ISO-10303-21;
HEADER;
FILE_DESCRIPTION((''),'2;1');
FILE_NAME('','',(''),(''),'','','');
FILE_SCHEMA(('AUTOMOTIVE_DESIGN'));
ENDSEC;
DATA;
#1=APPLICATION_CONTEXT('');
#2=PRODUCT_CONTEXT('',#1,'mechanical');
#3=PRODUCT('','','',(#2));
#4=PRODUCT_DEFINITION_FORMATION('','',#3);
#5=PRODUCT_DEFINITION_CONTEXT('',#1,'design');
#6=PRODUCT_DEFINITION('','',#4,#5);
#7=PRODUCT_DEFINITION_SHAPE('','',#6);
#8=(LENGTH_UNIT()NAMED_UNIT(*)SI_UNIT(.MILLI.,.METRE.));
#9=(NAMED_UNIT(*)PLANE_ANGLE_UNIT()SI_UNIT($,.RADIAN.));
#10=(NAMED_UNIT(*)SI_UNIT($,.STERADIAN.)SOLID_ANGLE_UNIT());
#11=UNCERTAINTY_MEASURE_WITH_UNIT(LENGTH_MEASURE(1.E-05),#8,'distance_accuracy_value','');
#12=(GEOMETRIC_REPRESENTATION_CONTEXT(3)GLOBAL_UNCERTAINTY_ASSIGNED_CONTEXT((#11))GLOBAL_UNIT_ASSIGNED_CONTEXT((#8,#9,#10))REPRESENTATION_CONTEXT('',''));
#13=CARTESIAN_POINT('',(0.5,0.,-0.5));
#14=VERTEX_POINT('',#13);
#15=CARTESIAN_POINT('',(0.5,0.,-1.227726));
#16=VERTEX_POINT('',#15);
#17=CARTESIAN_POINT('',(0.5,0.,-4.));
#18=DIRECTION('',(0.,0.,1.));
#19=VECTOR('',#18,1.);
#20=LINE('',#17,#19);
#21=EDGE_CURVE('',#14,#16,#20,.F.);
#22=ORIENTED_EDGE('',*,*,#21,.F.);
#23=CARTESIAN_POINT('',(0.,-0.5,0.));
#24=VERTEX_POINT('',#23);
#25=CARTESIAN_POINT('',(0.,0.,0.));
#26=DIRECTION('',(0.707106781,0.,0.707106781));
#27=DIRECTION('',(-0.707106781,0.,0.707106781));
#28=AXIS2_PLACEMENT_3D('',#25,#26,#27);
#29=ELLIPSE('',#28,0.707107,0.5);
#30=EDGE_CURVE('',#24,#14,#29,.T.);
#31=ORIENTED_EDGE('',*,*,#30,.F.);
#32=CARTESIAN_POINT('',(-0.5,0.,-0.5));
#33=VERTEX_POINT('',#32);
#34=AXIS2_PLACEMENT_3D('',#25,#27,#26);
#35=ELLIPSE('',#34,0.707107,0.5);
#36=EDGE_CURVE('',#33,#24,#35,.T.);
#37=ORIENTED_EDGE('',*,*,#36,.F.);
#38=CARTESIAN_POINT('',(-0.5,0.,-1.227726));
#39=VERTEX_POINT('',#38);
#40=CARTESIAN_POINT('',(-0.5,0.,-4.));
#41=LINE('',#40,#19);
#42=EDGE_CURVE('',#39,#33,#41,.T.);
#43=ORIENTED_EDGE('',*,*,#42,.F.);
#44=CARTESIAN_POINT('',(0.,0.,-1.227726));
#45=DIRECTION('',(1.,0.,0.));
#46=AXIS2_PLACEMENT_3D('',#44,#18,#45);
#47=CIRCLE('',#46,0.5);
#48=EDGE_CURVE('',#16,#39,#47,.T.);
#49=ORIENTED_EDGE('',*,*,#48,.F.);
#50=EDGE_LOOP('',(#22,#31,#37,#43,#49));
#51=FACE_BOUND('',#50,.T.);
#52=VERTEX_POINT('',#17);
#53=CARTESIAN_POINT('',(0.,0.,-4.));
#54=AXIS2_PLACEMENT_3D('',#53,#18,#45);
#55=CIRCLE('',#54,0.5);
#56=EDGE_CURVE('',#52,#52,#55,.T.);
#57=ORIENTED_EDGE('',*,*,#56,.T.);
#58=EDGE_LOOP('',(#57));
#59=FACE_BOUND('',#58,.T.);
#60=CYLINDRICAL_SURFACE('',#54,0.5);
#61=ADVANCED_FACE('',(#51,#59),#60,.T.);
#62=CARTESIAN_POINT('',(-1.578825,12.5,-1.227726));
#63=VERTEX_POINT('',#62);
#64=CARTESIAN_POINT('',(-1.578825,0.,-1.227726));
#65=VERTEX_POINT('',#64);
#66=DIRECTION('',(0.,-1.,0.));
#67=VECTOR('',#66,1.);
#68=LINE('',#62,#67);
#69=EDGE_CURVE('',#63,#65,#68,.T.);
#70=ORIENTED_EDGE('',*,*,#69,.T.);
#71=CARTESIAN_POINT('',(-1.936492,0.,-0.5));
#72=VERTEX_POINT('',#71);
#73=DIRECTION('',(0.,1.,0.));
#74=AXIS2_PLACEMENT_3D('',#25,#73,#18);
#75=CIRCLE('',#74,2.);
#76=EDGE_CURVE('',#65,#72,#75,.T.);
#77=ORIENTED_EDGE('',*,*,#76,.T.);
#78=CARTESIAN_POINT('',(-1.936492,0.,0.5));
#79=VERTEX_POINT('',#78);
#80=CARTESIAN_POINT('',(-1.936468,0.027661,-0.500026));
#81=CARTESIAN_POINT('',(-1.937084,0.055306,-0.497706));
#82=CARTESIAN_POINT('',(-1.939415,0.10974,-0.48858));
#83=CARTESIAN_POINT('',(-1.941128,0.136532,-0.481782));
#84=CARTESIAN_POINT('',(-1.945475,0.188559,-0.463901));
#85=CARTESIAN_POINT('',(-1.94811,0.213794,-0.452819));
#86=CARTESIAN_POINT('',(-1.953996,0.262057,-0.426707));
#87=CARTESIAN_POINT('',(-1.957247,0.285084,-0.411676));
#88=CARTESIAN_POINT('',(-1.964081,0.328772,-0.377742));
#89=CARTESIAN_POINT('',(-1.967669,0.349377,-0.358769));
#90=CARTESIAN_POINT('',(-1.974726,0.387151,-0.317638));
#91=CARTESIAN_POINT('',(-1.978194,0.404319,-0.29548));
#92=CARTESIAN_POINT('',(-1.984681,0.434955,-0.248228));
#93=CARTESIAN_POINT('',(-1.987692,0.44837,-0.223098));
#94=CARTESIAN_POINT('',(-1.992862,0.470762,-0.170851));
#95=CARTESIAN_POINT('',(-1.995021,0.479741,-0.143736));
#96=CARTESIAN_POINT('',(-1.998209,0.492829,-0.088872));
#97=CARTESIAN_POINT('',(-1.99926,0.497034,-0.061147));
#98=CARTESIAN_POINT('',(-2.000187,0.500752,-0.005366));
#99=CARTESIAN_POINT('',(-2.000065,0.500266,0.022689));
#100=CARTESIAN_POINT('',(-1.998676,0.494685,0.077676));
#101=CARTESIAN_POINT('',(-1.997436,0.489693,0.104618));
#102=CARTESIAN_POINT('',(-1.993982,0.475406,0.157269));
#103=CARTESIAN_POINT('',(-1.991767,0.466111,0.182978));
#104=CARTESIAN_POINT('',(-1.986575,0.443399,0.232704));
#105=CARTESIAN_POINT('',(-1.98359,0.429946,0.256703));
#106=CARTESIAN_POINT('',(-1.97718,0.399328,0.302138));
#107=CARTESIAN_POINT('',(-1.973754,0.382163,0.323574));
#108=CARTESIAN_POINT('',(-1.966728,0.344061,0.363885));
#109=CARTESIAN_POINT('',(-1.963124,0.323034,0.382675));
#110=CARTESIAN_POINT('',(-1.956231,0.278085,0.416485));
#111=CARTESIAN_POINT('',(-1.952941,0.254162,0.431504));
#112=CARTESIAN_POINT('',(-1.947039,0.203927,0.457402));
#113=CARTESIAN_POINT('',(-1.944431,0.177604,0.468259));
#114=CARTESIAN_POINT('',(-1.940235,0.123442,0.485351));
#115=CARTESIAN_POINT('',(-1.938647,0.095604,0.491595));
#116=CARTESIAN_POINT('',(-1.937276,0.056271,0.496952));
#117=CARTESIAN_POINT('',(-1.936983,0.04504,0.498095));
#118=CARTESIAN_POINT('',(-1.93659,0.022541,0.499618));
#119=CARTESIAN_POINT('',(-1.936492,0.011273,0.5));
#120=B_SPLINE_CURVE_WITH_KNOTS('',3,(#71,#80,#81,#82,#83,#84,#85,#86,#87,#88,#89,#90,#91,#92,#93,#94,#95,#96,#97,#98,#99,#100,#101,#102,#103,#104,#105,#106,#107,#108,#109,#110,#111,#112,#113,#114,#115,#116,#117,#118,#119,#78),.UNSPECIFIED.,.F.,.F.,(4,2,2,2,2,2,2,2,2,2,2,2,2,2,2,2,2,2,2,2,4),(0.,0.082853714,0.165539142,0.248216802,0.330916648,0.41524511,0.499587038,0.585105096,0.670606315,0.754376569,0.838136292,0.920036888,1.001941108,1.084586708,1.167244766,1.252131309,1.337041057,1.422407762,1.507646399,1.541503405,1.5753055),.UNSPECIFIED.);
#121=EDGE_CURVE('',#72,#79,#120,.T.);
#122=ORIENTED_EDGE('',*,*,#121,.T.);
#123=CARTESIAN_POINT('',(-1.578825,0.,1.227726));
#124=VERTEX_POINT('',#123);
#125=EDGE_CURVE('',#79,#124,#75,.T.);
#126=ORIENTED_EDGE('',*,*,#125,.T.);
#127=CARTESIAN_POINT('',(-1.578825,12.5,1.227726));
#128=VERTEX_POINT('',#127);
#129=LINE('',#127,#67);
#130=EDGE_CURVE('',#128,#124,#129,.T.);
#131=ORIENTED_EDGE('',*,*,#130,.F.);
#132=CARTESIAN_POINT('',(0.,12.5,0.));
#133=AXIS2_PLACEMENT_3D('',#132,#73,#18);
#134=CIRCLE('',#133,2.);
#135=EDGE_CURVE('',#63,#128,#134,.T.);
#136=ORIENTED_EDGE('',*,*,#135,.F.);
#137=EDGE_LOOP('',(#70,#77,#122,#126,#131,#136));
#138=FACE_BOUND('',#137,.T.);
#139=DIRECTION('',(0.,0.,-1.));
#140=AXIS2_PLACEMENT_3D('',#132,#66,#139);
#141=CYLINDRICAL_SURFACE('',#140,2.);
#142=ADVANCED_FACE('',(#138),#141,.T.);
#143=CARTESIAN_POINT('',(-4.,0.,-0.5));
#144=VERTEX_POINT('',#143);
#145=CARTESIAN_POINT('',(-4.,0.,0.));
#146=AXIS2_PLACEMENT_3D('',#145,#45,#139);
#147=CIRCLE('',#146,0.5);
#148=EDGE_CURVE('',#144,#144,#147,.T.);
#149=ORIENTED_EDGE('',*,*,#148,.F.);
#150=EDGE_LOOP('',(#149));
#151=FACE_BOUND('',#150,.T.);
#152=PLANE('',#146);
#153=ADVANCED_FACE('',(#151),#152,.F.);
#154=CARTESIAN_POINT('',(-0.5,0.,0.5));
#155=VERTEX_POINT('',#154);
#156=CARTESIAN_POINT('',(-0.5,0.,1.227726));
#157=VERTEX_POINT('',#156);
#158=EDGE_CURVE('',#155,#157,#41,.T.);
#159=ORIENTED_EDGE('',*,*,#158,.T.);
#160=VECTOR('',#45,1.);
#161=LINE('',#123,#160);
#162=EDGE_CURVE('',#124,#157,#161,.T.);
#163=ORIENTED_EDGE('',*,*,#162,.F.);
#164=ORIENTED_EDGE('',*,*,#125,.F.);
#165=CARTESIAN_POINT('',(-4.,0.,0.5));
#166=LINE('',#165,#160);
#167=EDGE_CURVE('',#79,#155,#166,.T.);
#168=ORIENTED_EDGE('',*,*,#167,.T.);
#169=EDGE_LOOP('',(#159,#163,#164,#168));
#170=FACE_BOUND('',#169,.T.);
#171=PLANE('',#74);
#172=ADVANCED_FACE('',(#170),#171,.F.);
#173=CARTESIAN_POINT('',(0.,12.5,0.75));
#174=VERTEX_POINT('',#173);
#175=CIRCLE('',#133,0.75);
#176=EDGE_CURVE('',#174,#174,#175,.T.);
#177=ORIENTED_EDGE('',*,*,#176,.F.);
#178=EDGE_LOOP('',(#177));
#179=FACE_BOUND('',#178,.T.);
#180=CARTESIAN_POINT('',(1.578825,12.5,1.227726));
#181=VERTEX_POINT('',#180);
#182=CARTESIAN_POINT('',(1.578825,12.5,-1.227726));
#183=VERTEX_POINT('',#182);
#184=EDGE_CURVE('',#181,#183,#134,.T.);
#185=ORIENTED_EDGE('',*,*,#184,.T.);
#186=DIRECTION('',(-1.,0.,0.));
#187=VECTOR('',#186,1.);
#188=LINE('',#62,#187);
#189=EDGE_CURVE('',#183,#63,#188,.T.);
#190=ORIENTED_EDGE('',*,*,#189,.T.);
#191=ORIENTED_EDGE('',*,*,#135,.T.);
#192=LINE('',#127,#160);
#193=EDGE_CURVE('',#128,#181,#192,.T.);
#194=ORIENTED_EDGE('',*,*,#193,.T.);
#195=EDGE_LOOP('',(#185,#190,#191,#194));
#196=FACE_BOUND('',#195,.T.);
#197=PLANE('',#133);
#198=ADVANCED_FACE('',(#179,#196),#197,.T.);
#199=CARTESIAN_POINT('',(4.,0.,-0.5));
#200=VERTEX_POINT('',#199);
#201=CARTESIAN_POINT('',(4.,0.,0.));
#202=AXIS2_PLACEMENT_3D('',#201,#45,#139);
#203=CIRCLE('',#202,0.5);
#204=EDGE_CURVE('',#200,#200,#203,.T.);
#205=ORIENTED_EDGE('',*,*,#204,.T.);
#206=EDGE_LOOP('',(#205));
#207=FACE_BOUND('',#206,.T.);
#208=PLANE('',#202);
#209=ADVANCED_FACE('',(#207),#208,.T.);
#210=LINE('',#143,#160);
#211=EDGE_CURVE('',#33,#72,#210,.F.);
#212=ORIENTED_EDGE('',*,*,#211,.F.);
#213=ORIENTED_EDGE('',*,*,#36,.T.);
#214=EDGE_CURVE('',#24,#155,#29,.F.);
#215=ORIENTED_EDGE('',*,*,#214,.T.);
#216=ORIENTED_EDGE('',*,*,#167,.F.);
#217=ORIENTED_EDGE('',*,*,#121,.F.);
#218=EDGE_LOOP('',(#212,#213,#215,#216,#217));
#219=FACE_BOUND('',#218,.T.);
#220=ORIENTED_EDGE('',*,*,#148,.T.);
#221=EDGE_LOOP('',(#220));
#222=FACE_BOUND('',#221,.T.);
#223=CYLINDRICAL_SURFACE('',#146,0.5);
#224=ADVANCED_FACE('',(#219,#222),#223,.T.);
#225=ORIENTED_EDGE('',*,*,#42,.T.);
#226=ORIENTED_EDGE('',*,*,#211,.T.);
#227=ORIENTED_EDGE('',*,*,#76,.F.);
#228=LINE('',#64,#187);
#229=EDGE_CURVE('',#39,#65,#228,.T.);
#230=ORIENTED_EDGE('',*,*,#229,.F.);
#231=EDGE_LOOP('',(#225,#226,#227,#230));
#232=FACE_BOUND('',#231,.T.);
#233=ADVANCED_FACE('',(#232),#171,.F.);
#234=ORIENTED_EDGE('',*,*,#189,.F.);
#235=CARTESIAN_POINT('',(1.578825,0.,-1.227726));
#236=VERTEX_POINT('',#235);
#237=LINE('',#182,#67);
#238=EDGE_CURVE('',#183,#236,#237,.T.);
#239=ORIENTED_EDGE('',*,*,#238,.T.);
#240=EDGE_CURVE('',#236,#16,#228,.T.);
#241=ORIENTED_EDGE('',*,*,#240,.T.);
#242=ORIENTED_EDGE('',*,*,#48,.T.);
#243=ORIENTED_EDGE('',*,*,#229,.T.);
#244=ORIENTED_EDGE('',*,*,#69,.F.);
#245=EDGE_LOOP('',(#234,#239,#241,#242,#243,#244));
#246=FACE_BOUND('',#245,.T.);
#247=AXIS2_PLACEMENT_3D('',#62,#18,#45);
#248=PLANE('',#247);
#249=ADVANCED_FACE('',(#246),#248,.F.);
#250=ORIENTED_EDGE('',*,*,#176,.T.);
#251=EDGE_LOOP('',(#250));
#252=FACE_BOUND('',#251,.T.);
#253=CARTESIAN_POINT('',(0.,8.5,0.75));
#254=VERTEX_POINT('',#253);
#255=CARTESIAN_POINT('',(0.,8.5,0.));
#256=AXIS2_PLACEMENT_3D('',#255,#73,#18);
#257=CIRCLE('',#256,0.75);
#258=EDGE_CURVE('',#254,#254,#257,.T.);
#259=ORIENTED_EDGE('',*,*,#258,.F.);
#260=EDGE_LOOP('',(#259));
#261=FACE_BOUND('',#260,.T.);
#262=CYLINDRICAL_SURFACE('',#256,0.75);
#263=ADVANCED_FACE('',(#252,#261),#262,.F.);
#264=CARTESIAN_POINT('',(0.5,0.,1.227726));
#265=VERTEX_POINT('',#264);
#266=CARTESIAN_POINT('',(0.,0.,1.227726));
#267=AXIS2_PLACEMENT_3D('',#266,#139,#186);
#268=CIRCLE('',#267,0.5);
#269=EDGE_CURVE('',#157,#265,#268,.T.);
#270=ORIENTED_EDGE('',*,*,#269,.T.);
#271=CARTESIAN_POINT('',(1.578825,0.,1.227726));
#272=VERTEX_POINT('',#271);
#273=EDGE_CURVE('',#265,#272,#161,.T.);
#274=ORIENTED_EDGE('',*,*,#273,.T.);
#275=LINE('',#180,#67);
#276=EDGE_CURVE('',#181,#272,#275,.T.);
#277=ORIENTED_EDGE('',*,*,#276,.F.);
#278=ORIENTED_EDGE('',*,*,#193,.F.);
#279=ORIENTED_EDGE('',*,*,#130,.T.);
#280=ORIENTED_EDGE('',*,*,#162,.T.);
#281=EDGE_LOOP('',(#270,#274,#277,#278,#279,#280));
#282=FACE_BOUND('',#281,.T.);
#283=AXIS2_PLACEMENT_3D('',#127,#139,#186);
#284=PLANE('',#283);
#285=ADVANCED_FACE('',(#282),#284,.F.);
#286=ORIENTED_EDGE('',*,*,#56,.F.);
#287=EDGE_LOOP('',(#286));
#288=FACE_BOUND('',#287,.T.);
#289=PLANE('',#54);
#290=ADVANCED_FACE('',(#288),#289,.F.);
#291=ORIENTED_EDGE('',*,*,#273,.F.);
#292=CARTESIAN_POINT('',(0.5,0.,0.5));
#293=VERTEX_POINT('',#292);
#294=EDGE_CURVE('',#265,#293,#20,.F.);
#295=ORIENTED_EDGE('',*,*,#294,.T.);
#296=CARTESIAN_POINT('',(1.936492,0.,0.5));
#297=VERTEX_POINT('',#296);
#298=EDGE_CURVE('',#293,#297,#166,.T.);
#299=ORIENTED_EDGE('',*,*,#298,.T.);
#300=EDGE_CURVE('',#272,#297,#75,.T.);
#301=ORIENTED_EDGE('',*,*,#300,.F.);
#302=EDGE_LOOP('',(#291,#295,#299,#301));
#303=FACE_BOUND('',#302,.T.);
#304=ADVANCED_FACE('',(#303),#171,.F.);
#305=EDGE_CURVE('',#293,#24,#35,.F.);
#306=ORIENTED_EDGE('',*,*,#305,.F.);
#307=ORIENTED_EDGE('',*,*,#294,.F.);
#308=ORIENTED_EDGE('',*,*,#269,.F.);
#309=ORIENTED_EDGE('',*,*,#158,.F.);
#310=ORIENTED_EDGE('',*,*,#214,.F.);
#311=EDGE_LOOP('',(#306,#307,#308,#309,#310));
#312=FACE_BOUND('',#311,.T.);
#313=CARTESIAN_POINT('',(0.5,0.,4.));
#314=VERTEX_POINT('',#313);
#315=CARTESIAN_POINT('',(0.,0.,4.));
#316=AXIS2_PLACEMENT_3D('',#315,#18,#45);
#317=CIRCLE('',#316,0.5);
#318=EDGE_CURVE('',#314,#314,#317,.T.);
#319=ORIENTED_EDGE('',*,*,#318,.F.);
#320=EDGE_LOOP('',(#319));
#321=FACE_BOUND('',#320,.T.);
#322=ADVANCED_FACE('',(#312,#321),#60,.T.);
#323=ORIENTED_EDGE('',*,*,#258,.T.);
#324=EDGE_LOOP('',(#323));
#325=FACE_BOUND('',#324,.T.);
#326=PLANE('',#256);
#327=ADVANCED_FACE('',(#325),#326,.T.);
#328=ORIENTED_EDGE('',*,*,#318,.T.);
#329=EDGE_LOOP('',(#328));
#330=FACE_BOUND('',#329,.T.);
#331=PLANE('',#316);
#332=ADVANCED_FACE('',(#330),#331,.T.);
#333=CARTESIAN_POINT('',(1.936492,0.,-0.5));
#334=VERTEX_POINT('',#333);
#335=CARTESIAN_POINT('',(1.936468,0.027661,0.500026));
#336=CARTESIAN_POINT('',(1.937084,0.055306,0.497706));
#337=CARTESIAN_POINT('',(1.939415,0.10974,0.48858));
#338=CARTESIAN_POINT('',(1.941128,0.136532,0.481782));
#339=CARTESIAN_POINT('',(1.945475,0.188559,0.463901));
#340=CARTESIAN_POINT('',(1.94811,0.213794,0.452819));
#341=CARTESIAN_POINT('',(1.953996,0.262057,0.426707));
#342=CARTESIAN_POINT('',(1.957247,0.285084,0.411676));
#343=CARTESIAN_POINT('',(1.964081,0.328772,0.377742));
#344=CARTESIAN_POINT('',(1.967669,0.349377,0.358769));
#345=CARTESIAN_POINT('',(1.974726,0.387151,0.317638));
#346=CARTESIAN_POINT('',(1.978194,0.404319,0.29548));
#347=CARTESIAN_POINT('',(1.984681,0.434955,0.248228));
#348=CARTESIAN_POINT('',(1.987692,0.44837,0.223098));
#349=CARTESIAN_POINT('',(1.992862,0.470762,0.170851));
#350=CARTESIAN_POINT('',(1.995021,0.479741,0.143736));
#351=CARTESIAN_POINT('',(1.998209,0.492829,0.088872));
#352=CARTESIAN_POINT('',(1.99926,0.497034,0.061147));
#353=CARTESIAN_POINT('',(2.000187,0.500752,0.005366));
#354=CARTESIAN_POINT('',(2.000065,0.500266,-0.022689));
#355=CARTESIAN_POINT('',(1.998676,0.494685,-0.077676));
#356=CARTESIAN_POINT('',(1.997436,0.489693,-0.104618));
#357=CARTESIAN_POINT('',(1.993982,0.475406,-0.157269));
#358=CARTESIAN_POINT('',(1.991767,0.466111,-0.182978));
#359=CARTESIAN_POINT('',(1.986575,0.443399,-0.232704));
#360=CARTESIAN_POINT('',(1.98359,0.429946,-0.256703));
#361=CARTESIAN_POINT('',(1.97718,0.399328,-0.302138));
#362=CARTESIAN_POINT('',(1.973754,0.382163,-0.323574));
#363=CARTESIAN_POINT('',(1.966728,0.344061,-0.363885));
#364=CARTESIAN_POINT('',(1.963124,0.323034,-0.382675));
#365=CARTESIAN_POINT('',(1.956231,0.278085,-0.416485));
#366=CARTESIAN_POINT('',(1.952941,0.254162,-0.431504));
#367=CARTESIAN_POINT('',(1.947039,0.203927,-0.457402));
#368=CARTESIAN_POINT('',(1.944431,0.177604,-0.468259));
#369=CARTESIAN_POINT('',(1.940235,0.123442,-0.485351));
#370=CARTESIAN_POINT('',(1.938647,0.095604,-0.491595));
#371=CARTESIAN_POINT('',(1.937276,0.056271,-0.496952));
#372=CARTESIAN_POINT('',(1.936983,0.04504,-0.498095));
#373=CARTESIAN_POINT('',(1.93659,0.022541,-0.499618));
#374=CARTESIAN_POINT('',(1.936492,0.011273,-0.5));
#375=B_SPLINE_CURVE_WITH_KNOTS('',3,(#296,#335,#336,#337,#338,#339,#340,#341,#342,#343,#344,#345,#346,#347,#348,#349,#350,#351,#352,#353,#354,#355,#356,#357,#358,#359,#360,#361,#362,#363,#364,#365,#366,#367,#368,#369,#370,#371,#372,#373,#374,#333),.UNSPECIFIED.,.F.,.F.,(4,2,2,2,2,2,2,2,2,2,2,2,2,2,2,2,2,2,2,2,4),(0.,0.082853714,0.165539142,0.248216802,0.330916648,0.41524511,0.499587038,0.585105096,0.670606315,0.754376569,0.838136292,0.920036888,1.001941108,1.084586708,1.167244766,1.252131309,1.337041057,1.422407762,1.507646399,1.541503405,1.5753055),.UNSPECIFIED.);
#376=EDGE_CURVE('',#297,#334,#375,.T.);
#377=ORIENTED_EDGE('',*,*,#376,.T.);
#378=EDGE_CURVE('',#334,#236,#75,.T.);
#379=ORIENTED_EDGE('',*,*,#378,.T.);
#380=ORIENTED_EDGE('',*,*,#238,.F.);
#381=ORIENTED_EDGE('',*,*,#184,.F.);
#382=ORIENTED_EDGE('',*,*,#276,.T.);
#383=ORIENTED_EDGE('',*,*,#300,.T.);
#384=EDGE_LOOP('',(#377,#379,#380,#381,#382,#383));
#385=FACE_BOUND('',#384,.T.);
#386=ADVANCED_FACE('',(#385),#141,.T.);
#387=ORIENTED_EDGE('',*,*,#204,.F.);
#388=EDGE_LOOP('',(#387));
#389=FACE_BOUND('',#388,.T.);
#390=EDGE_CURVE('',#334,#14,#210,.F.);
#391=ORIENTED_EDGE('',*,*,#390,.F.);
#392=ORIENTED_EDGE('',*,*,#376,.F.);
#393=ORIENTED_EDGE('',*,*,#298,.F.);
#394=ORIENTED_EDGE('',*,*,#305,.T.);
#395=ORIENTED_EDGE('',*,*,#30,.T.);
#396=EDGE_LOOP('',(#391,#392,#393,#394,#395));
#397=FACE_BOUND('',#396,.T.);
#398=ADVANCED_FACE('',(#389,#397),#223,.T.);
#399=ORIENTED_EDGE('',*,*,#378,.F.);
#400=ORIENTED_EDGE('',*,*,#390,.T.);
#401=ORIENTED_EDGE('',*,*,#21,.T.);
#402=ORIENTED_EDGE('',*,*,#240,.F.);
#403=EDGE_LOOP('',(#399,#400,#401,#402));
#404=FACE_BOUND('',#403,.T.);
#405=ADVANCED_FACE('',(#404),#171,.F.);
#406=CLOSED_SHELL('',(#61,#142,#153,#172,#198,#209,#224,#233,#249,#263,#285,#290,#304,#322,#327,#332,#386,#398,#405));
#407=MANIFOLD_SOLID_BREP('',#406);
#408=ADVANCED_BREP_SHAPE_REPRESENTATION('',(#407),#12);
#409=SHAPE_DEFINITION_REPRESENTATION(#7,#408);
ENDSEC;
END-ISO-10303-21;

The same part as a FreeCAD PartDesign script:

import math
import FreeCAD as App
import Part
import Sketcher
from FreeCAD import Vector
Q = App.Units.Quantity

doc = App.newDocument("Part")
body = doc.addObject("PartDesign::Body", "Body")

# Sketch on XZ plane
sketch1 = body.newObject("Sketcher::SketchObject", "Sketch")
sketch1.AttachmentSupport = (doc.getObject("XZ_Plane"), [""])
sketch1.MapMode = "FlatFace"
sketch1.addGeometry([
    Part.LineSegment(Vector(1.6, -1.2, 0), Vector(-1.6, -1.2, 0)),
    Part.ArcOfCircle(Part.Circle(Vector(0, 0, 0), Vector(0, 0, 1), 2), math.radians(142), math.radians(218)),
    Part.LineSegment(Vector(-1.6, 1.2, 0), Vector(1.6, 1.2, 0)),
    Part.ArcOfCircle(Part.Circle(Vector(0, 0, 0), Vector(0, 0, 1), 2), math.radians(-38), math.radians(38)),
], False)
sketch1.addConstraint([
    Sketcher.Constraint("Coincident", 0, 2, 1, 2),
    Sketcher.Constraint("Coincident", 1, 1, 2, 1),
    Sketcher.Constraint("Coincident", 2, 2, 3, 2),
    Sketcher.Constraint("Coincident", 3, 1, 0, 1),
    Sketcher.Constraint("Horizontal", 0),
    Sketcher.Constraint("Horizontal", 2),
    Sketcher.Constraint("Coincident", 1, 3, -1, 1),
    Sketcher.Constraint("Coincident", 3, 3, -1, 1),
    Sketcher.Constraint("Equal", 1, 3),
    Sketcher.Constraint("Vertical", 0, 2, 1, 1),
    Sketcher.Constraint("Radius", 1, Q("2 mm")),
    Sketcher.Constraint("DistanceX", 0, 2, 0, 1, Q("3.15765 mm")),
])
pad1 = body.newObject("PartDesign::Pad", "Pad")
pad1.Profile = sketch1
pad1.Length = 12.5
pad1.Reversed = True

# Sketch on XZ plane
sketch2 = body.newObject("Sketcher::SketchObject", "Sketch001")
sketch2.AttachmentSupport = (doc.getObject("XZ_Plane"), [""])
sketch2.MapMode = "FlatFace"
sketch2.AttachmentOffset = App.Placement(Vector(0, 0, -12.5), App.Rotation())
sketch2.addGeometry(Part.Circle(Vector(0, 0, 0), Vector(0, 0, 1), 0.8), False)
sketch2.addConstraint([
    Sketcher.Constraint("Coincident", 0, 3, -1, 1),
    Sketcher.Constraint("Diameter", 0, Q("1.5 mm")),
])
pocket1 = body.newObject("PartDesign::Pocket", "Pocket")
pocket1.Profile = sketch2
pocket1.Length = 4
pocket1.Reversed = True

# Sketch on XY plane
sketch3 = body.newObject("Sketcher::SketchObject", "Sketch002")
sketch3.AttachmentSupport = (doc.getObject("XY_Plane"), [""])
sketch3.MapMode = "FlatFace"
sketch3.addGeometry(Part.Circle(Vector(0, 0, 0), Vector(0, 0, 1), 0.5), False)
sketch3.addConstraint([
    Sketcher.Constraint("Coincident", 0, 3, -1, 1),
    Sketcher.Constraint("Diameter", 0, Q("1 mm")),
])
pad2 = body.newObject("PartDesign::Pad", "Pad001")
pad2.Profile = sketch3
pad2.Type = "TwoLengths"
pad2.Length = 4
pad2.Length2 = 4

# Sketch on YZ plane
sketch4 = body.newObject("Sketcher::SketchObject", "Sketch003")
sketch4.AttachmentSupport = (doc.getObject("YZ_Plane"), [""])
sketch4.MapMode = "FlatFace"
sketch4.addGeometry(Part.Circle(Vector(0, 0, 0), Vector(0, 0, 1), 0.5), False)
sketch4.addConstraint([
    Sketcher.Constraint("Coincident", 0, 3, -1, 1),
    Sketcher.Constraint("Diameter", 0, Q("1 mm")),
])
pad3 = body.newObject("PartDesign::Pad", "Pad002")
pad3.Profile = sketch4
pad3.Type = "TwoLengths"
pad3.Length = 4
pad3.Length2 = 4

doc.recompute()
